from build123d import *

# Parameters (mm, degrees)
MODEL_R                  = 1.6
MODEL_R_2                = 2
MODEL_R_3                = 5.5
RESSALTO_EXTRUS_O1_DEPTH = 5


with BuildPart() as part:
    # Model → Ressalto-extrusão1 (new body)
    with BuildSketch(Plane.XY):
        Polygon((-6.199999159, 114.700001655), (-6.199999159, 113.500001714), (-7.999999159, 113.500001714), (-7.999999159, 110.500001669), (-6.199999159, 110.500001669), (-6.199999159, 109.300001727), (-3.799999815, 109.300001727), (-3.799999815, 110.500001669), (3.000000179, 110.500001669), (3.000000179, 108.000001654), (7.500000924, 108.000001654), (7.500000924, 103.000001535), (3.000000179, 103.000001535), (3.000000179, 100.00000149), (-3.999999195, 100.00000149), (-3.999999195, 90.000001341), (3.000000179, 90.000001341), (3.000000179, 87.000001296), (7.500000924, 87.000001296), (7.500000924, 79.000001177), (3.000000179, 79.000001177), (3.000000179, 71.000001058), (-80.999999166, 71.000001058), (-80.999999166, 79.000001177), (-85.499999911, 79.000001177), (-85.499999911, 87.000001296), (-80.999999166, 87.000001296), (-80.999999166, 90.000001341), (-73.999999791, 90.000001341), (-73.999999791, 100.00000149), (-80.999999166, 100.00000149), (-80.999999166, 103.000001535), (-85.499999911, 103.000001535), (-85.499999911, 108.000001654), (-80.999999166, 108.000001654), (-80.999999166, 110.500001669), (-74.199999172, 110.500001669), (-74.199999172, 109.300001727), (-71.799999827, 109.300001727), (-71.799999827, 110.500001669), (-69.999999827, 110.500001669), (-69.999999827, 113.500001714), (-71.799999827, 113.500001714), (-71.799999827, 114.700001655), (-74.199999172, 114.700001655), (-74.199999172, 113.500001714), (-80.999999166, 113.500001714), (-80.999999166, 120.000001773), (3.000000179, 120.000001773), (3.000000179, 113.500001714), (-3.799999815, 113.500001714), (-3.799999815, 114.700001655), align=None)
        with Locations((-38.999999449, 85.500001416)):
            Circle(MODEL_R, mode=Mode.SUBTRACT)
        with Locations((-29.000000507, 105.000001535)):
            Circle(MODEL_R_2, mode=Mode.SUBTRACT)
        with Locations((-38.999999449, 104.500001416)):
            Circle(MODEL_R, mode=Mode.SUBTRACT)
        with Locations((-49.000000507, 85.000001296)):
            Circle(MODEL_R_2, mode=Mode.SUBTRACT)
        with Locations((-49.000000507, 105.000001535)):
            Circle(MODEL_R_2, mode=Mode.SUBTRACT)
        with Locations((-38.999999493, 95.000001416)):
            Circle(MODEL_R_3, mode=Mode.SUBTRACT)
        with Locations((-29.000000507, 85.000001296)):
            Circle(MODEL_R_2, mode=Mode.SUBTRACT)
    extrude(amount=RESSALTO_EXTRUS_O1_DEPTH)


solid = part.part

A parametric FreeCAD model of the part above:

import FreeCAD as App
import Part
import Sketcher

V = App.Vector

doc = App.newDocument("Part")
body = doc.addObject("PartDesign::Body", "Body")

# Sketch on XY plane
sketch1 = doc.addObject("Sketcher::SketchObject", "Sketch")
body.addObject(sketch1)
sketch1.AttachmentSupport = (doc.XY_Plane, [""])
sketch1.MapMode = "FlatFace"
sketch1.addGeometry([
    Part.LineSegment(V(-6.199999, 113.500002, 0), V(-6.199999, 114.700002, 0)),  # 0
    Part.LineSegment(V(-6.199999, 114.700002, 0), V(-3.8, 114.700002, 0)),  # 1
    Part.LineSegment(V(-3.8, 114.700002, 0), V(-3.8, 113.500002, 0)),  # 2
    Part.LineSegment(V(-3.8, 113.500002, 0), V(3, 113.500002, 0)),  # 3
    Part.LineSegment(V(3, 113.500002, 0), V(3, 120.000002, 0)),  # 4
    Part.LineSegment(V(3, 120.000002, 0), V(-80.999999, 120.000002, 0)),  # 5
    Part.LineSegment(V(-80.999999, 120.000002, 0), V(-80.999999, 113.500002, 0)),  # 6
    Part.LineSegment(V(-80.999999, 113.500002, 0), V(-74.199999, 113.500002, 0)),  # 7
    Part.LineSegment(V(-74.199999, 113.500002, 0), V(-74.199999, 114.700002, 0)),  # 8
    Part.LineSegment(V(-74.199999, 114.700002, 0), V(-71.8, 114.700002, 0)),  # 9
    Part.LineSegment(V(-71.8, 114.700002, 0), V(-71.8, 113.500002, 0)),  # 10
    Part.LineSegment(V(-71.8, 113.500002, 0), V(-70, 113.500002, 0)),  # 11
    Part.LineSegment(V(-70, 113.500002, 0), V(-70, 110.500002, 0)),  # 12
    Part.LineSegment(V(-70, 110.500002, 0), V(-71.8, 110.500002, 0)),  # 13
    Part.LineSegment(V(-71.8, 110.500002, 0), V(-71.8, 109.300002, 0)),  # 14
    Part.LineSegment(V(-71.8, 109.300002, 0), V(-74.199999, 109.300002, 0)),  # 15
    Part.LineSegment(V(-74.199999, 109.300002, 0), V(-74.199999, 110.500002, 0)),  # 16
    Part.LineSegment(V(-74.199999, 110.500002, 0), V(-80.999999, 110.500002, 0)),  # 17
    Part.LineSegment(V(-80.999999, 110.500002, 0), V(-80.999999, 108.000002, 0)),  # 18
    Part.LineSegment(V(-80.999999, 108.000002, 0), V(-85.5, 108.000002, 0)),  # 19
    Part.LineSegment(V(-85.5, 108.000002, 0), V(-85.5, 103.000002, 0)),  # 20
    Part.LineSegment(V(-85.5, 103.000002, 0), V(-80.999999, 103.000002, 0)),  # 21
    Part.LineSegment(V(-80.999999, 103.000002, 0), V(-80.999999, 100.000001, 0)),  # 22
    Part.LineSegment(V(-80.999999, 100.000001, 0), V(-74, 100.000001, 0)),  # 23
    Part.LineSegment(V(-74, 100.000001, 0), V(-74, 90.000001, 0)),  # 24
    Part.LineSegment(V(-74, 90.000001, 0), V(-80.999999, 90.000001, 0)),  # 25
    Part.LineSegment(V(-80.999999, 90.000001, 0), V(-80.999999, 87.000001, 0)),  # 26
    Part.LineSegment(V(-80.999999, 87.000001, 0), V(-85.5, 87.000001, 0)),  # 27
    Part.LineSegment(V(-85.5, 87.000001, 0), V(-85.5, 79.000001, 0)),  # 28
    Part.LineSegment(V(-85.5, 79.000001, 0), V(-80.999999, 79.000001, 0)),  # 29
    Part.LineSegment(V(-80.999999, 79.000001, 0), V(-80.999999, 71.000001, 0)),  # 30
    Part.LineSegment(V(-80.999999, 71.000001, 0), V(3, 71.000001, 0)),  # 31
    Part.LineSegment(V(3, 71.000001, 0), V(3, 79.000001, 0)),  # 32
    Part.LineSegment(V(3, 79.000001, 0), V(7.500001, 79.000001, 0)),  # 33
    Part.LineSegment(V(7.500001, 79.000001, 0), V(7.500001, 87.000001, 0)),  # 34
    Part.LineSegment(V(7.500001, 87.000001, 0), V(3, 87.000001, 0)),  # 35
    Part.LineSegment(V(3, 87.000001, 0), V(3, 90.000001, 0)),  # 36
    Part.LineSegment(V(3, 90.000001, 0), V(-3.999999, 90.000001, 0)),  # 37
    Part.LineSegment(V(-3.999999, 90.000001, 0), V(-3.999999, 100.000001, 0)),  # 38
    Part.LineSegment(V(-3.999999, 100.000001, 0), V(3, 100.000001, 0)),  # 39
    Part.LineSegment(V(3, 100.000001, 0), V(3, 103.000002, 0)),  # 40
    Part.LineSegment(V(3, 103.000002, 0), V(7.500001, 103.000002, 0)),  # 41
    Part.LineSegment(V(7.500001, 103.000002, 0), V(7.500001, 108.000002, 0)),  # 42
    Part.LineSegment(V(7.500001, 108.000002, 0), V(3, 108.000002, 0)),  # 43
    Part.LineSegment(V(3, 108.000002, 0), V(3, 110.500002, 0)),  # 44
    Part.LineSegment(V(3, 110.500002, 0), V(-3.8, 110.500002, 0)),  # 45
    Part.LineSegment(V(-3.8, 110.500002, 0), V(-3.8, 109.300002, 0)),  # 46
    Part.LineSegment(V(-3.8, 109.300002, 0), V(-6.199999, 109.300002, 0)),  # 47
    Part.LineSegment(V(-6.199999, 109.300002, 0), V(-6.199999, 110.500002, 0)),  # 48
    Part.LineSegment(V(-6.199999, 110.500002, 0), V(-7.999999, 110.500002, 0)),  # 49
    Part.LineSegment(V(-7.999999, 110.500002, 0), V(-7.999999, 113.500002, 0)),  # 50
    Part.LineSegment(V(-7.999999, 113.500002, 0), V(-6.199999, 113.500002, 0)),  # 51
    Part.Circle(V(-29.000001, 85.000001, 0), V(0, 0, 1), 2),  # 52
    Part.Circle(V(-38.999999, 85.500001, 0), V(0, 0, 1), 1.6),  # 53
    Part.Circle(V(-49.000001, 85.000001, 0), V(0, 0, 1), 2),  # 54
    Part.Circle(V(-38.999999, 95.000001, 0), V(0, 0, 1), 5.5),  # 55
    Part.Circle(V(-29.000001, 105.000002, 0), V(0, 0, 1), 2),  # 56
    Part.Circle(V(-38.999999, 104.500001, 0), V(0, 0, 1), 1.6),  # 57
    Part.Circle(V(-49.000001, 105.000002, 0), V(0, 0, 1), 2),  # 58
], False)
sketch1.addConstraint([
    Sketcher.Constraint("Coincident", 0, 2, 1, 1),
    Sketcher.Constraint("Coincident", 1, 2, 2, 1),
    Sketcher.Constraint("Coincident", 2, 2, 3, 1),
    Sketcher.Constraint("Coincident", 3, 2, 4, 1),
    Sketcher.Constraint("Coincident", 4, 2, 5, 1),
    Sketcher.Constraint("Coincident", 5, 2, 6, 1),
    Sketcher.Constraint("Coincident", 6, 2, 7, 1),
    Sketcher.Constraint("Coincident", 7, 2, 8, 1),
    Sketcher.Constraint("Coincident", 8, 2, 9, 1),
    Sketcher.Constraint("Coincident", 9, 2, 10, 1),
    Sketcher.Constraint("Coincident", 10, 2, 11, 1),
    Sketcher.Constraint("Coincident", 11, 2, 12, 1),
    Sketcher.Constraint("Coincident", 12, 2, 13, 1),
    Sketcher.Constraint("Coincident", 13, 2, 14, 1),
    Sketcher.Constraint("Coincident", 14, 2, 15, 1),
    Sketcher.Constraint("Coincident", 15, 2, 16, 1),
    Sketcher.Constraint("Coincident", 16, 2, 17, 1),
    Sketcher.Constraint("Coincident", 17, 2, 18, 1),
    Sketcher.Constraint("Coincident", 18, 2, 19, 1),
    Sketcher.Constraint("Coincident", 19, 2, 20, 1),
    Sketcher.Constraint("Coincident", 20, 2, 21, 1),
    Sketcher.Constraint("Coincident", 21, 2, 22, 1),
    Sketcher.Constraint("Coincident", 22, 2, 23, 1),
    Sketcher.Constraint("Coincident", 23, 2, 24, 1),
    Sketcher.Constraint("Coincident", 24, 2, 25, 1),
    Sketcher.Constraint("Coincident", 25, 2, 26, 1),
    Sketcher.Constraint("Coincident", 26, 2, 27, 1),
    Sketcher.Constraint("Coincident", 27, 2, 28, 1),
    Sketcher.Constraint("Coincident", 28, 2, 29, 1),
    Sketcher.Constraint("Coincident", 29, 2, 30, 1),
    Sketcher.Constraint("Coincident", 30, 2, 31, 1),
    Sketcher.Constraint("Coincident", 31, 2, 32, 1),
    Sketcher.Constraint("Coincident", 32, 2, 33, 1),
    Sketcher.Constraint("Coincident", 33, 2, 34, 1),
    Sketcher.Constraint("Coincident", 34, 2, 35, 1),
    Sketcher.Constraint("Coincident", 35, 2, 36, 1),
    Sketcher.Constraint("Coincident", 36, 2, 37, 1),
    Sketcher.Constraint("Coincident", 37, 2, 38, 1),
    Sketcher.Constraint("Coincident", 38, 2, 39, 1),
    Sketcher.Constraint("Coincident", 39, 2, 40, 1),
    Sketcher.Constraint("Coincident", 40, 2, 41, 1),
    Sketcher.Constraint("Coincident", 41, 2, 42, 1),
    Sketcher.Constraint("Coincident", 42, 2, 43, 1),
    Sketcher.Constraint("Coincident", 43, 2, 44, 1),
    Sketcher.Constraint("Coincident", 44, 2, 45, 1),
    Sketcher.Constraint("Coincident", 45, 2, 46, 1),
    Sketcher.Constraint("Coincident", 46, 2, 47, 1),
    Sketcher.Constraint("Coincident", 47, 2, 48, 1),
    Sketcher.Constraint("Coincident", 48, 2, 49, 1),
    Sketcher.Constraint("Coincident", 49, 2, 50, 1),
    Sketcher.Constraint("Coincident", 50, 2, 51, 1),
    Sketcher.Constraint("Coincident", 51, 2, 0, 1),
    Sketcher.Constraint("Vertical", 0),
    Sketcher.Constraint("Horizontal", 1),
    Sketcher.Constraint("Vertical", 2),
    Sketcher.Constraint("Horizontal", 3),
    Sketcher.Constraint("Vertical", 4),
    Sketcher.Constraint("Horizontal", 5),
    Sketcher.Constraint("Vertical", 6),
    Sketcher.Constraint("Horizontal", 7),
    Sketcher.Constraint("Vertical", 8),
    Sketcher.Constraint("Horizontal", 9),
    Sketcher.Constraint("Vertical", 10),
    Sketcher.Constraint("Horizontal", 11),
    Sketcher.Constraint("Vertical", 12),
    Sketcher.Constraint("Horizontal", 13),
    Sketcher.Constraint("Vertical", 14),
    Sketcher.Constraint("Horizontal", 15),
    Sketcher.Constraint("Vertical", 16),
    Sketcher.Constraint("Horizontal", 17),
    Sketcher.Constraint("Vertical", 18),
    Sketcher.Constraint("Horizontal", 19),
    Sketcher.Constraint("Vertical", 20),
    Sketcher.Constraint("Horizontal", 21),
    Sketcher.Constraint("Vertical", 22),
    Sketcher.Constraint("Horizontal", 23),
    Sketcher.Constraint("Vertical", 24),
    Sketcher.Constraint("Horizontal", 25),
    Sketcher.Constraint("Vertical", 26),
    Sketcher.Constraint("Horizontal", 27),
    Sketcher.Constraint("Vertical", 28),
    Sketcher.Constraint("Horizontal", 29),
    Sketcher.Constraint("Vertical", 30),
    Sketcher.Constraint("Horizontal", 31),
    Sketcher.Constraint("Vertical", 32),
    Sketcher.Constraint("Horizontal", 33),
    Sketcher.Constraint("Vertical", 34),
    Sketcher.Constraint("Horizontal", 35),
    Sketcher.Constraint("Vertical", 36),
    Sketcher.Constraint("Horizontal", 37),
    Sketcher.Constraint("Vertical", 38),
    Sketcher.Constraint("Horizontal", 39),
    Sketcher.Constraint("Vertical", 40),
    Sketcher.Constraint("Horizontal", 41),
    Sketcher.Constraint("Vertical", 42),
    Sketcher.Constraint("Horizontal", 43),
    Sketcher.Constraint("Vertical", 44),
    Sketcher.Constraint("Horizontal", 45),
    Sketcher.Constraint("Vertical", 46),
    Sketcher.Constraint("Horizontal", 47),
    Sketcher.Constraint("Vertical", 48),
    Sketcher.Constraint("Horizontal", 49),
    Sketcher.Constraint("Vertical", 50),
    Sketcher.Constraint("Horizontal", 51),
    Sketcher.Constraint("Equal", 52, 54),
    Sketcher.Constraint("Equal", 54, 56),
    Sketcher.Constraint("Equal", 53, 57),
    Sketcher.Constraint("Equal", 56, 58),
    Sketcher.Constraint("Horizontal", 52, 3, 54, 3),
    Sketcher.Constraint("Horizontal", 56, 3, 58, 3),
    Sketcher.Constraint("Horizontal", 3, 2, 6, 2),
    Sketcher.Constraint("Horizontal", 1, 2, 8, 2),
    Sketcher.Constraint("Horizontal", 7, 2, 10, 2),
    Sketcher.Constraint("Horizontal", 13, 2, 16, 2),
    Sketcher.Constraint("Horizontal", 29, 2, 32, 2),
    Sketcher.Constraint("Horizontal", 27, 2, 34, 2),
    Sketcher.Constraint("Horizontal", 25, 2, 36, 2),
    Sketcher.Constraint("Horizontal", 23, 2, 38, 2),
    Sketcher.Constraint("Horizontal", 21, 2, 40, 2),
    Sketcher.Constraint("Horizontal", 19, 2, 42, 2),
    Sketcher.Constraint("Horizontal", 17, 2, 44, 2),
    Sketcher.Constraint("Horizontal", 15, 2, 46, 2),
    Sketcher.Constraint("Horizontal", 45, 2, 48, 2),
    Sketcher.Constraint("Horizontal", 11, 2, 50, 2),
    Sketcher.Constraint("Vertical", 53, 3, 55, 3),
    Sketcher.Constraint("Vertical", 52, 3, 56, 3),
    Sketcher.Constraint("Vertical", 55, 3, 57, 3),
    Sketcher.Constraint("Vertical", 54, 3, 58, 3),
    Sketcher.Constraint("Vertical", 10, 2, 13, 2),
    Sketcher.Constraint("Vertical", 8, 2, 15, 2),
    Sketcher.Constraint("Vertical", 6, 2, 17, 2),
    Sketcher.Constraint("Vertical", 18, 2, 21, 2),
    Sketcher.Constraint("Vertical", 22, 2, 25, 2),
    Sketcher.Constraint("Vertical", 20, 2, 27, 2),
    Sketcher.Constraint("Vertical", 26, 2, 29, 2),
    Sketcher.Constraint("Vertical", 4, 2, 31, 2),
    Sketcher.Constraint("Vertical", 32, 2, 35, 2),
    Sketcher.Constraint("Vertical", 36, 2, 39, 2),
    Sketcher.Constraint("Vertical", 34, 2, 41, 2),
    Sketcher.Constraint("Vertical", 40, 2, 43, 2),
    Sketcher.Constraint("Vertical", 2, 2, 45, 2),
    Sketcher.Constraint("Vertical", 0, 2, 47, 2),
    Sketcher.Constraint("Equal", 3, 7),
    Sketcher.Constraint("Equal", 1, 9),
    Sketcher.Constraint("Equal", 29, 33),
    Sketcher.Constraint("Equal", 25, 37),
    Sketcher.Constraint("Equal", 13, 49),
    Sketcher.Constraint("Equal", 10, 14),
    Sketcher.Constraint("Equal", 12, 22),
    Sketcher.Constraint("Equal", 22, 26),
    Sketcher.Constraint("Equal", 28, 30),
    Sketcher.Constraint("Diameter", 52, 4.0),
    Sketcher.Constraint("Diameter", 55, 11.0),
    Sketcher.Constraint("Diameter", 53, 3.2),
    Sketcher.Constraint("DistanceX", 5, 2, 5, 1, 83.999999),
    Sketcher.Constraint("DistanceX", 23, 1, 23, 2, 6.999999),
    Sketcher.Constraint("DistanceY", 12, 2, 12, 1, 3.0),
    Sketcher.Constraint("DistanceY", 20, 2, 20, 1, 5.0),
    Sketcher.Constraint("DistanceY", 24, 2, 24, 1, 10.0),
    Sketcher.Constraint("DistanceY", 28, 2, 28, 1, 8.0),
    Sketcher.Constraint("DistanceX", 1, 1, 1, 2, 2.399999),
    Sketcher.Constraint("DistanceX", 3, 1, 3, 2, 6.8),
    Sketcher.Constraint("DistanceX", 11, 1, 11, 2, 1.8),
    Sketcher.Constraint("DistanceX", 19, 2, 19, 1, 4.500001),
    Sketcher.Constraint("DistanceY", 0, 1, 0, 2, 1.2),
    Sketcher.Constraint("DistanceY", 4, 1, 4, 2, 6.5),
    Sketcher.Constraint("DistanceY", 18, 2, 18, 1, 2.5),
    Sketcher.Constraint("DistanceX", 52, 3, -1, 1, 29.000001),
    Sketcher.Constraint("DistanceY", -1, 1, 52, 3, 85.000001),
    Sketcher.Constraint("DistanceX", 53, 3, -1, 1, 38.999999),
    Sketcher.Constraint("DistanceX", 54, 3, -1, 1, 49.000001),
    Sketcher.Constraint("DistanceY", -1, 1, 55, 3, 95.000001),
    Sketcher.Constraint("DistanceY", -1, 1, 56, 3, 105.000002),
    Sketcher.Constraint("DistanceX", -1, 1, 3, 2, 3.0),
    Sketcher.Constraint("DistanceY", -1, 1, 4, 2, 120.000002),
    Sketcher.Constraint("DistanceY", 53, 3, 57, 3, 19.0),
    Sketcher.Constraint("DistanceY", 57, 3, 2, 2, 9.0),
])
pad1 = doc.addObject("PartDesign::Pad", "Pad")
body.addObject(pad1)
pad1.Profile = sketch1
pad1.Length = 5

doc.recompute()
